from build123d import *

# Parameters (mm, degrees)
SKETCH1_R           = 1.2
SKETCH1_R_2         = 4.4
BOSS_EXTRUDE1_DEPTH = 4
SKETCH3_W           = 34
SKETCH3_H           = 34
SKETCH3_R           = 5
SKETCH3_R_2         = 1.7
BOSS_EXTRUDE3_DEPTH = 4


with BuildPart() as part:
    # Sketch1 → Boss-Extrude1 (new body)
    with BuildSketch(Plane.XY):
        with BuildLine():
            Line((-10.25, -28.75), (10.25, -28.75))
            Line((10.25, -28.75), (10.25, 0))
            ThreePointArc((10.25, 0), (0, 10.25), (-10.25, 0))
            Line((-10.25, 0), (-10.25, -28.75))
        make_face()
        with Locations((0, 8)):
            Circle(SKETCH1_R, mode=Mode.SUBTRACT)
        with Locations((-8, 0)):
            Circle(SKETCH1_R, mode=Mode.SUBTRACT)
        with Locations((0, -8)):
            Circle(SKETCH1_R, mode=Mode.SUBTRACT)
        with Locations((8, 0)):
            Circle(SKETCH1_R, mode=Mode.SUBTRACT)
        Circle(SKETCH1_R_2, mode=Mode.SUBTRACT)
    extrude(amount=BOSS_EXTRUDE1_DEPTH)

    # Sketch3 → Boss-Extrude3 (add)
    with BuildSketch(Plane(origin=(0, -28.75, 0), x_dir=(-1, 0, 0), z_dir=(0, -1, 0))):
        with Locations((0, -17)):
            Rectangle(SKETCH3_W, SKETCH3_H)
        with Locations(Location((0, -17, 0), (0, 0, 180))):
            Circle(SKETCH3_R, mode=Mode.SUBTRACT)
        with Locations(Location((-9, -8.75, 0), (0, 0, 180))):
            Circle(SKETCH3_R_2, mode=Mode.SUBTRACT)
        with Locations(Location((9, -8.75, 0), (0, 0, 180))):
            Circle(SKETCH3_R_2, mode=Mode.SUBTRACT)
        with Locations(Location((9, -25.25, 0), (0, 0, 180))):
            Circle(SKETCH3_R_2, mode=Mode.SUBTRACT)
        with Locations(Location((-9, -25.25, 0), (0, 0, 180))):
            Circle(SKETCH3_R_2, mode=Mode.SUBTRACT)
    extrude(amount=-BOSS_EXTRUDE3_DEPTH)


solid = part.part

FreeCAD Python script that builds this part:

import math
import FreeCAD as App
import Part
import Sketcher
from FreeCAD import Vector
Q = App.Units.Quantity

doc = App.newDocument("Part")
body = doc.addObject("PartDesign::Body", "Body")

# Sketch on XY plane
sketch1 = doc.addObject("Sketcher::SketchObject", "Sketch")
body.addObject(sketch1)
sketch1.AttachmentSupport = (doc.XY_Plane, [""])
sketch1.MapMode = "FlatFace"
sketch1.addGeometry([
    Part.LineSegment(Vector(-10.2, -28.8, 0), Vector(10.2, -28.8, 0)),  # 0
    Part.LineSegment(Vector(10.2, -28.8, 0), Vector(10.2, 0, 0)),  # 1
    Part.ArcOfCircle(Part.Circle(Vector(0, 0, 0), Vector(0, 0, 1), 10.2), math.radians(0), math.radians(180)),  # 2
    Part.LineSegment(Vector(-10.2, 0, 0), Vector(-10.2, -28.8, 0)),  # 3
    Part.Circle(Vector(-8, 0, 0), Vector(0, 0, 1), 1.2),  # 4
    Part.Circle(Vector(0, -8, 0), Vector(0, 0, 1), 1.2),  # 5
    Part.Circle(Vector(0, 0, 0), Vector(0, 0, 1), 4.4),  # 6
    Part.Circle(Vector(8, 0, 0), Vector(0, 0, 1), 1.2),  # 7
    Part.Circle(Vector(0, 8, 0), Vector(0, 0, 1), 1.2),  # 8
], False)
sketch1.addConstraint([
    Sketcher.Constraint("Coincident", 0, 2, 1, 1),
    Sketcher.Constraint("Tangent", 1, 2, 2, 1),
    Sketcher.Constraint("Tangent", 2, 2, 3, 1),
    Sketcher.Constraint("Coincident", 3, 2, 0, 1),
    Sketcher.Constraint("Horizontal", 0),
    Sketcher.Constraint("Vertical", 1),
    Sketcher.Constraint("Vertical", 3),
    Sketcher.Constraint("Coincident", 2, 3, -1, 1),
    Sketcher.Constraint("Coincident", 6, 3, -1, 1),
    Sketcher.Constraint("Equal", 4, 5),
    Sketcher.Constraint("Equal", 5, 7),
    Sketcher.Constraint("Equal", 7, 8),
    Sketcher.Constraint("Symmetric", 4, 3, 7, 3, -1, 1),
    Sketcher.Constraint("Symmetric", 5, 3, 8, 3, -1, 1),
    Sketcher.Constraint("PointOnObject", 4, 3, -1),
    Sketcher.Constraint("PointOnObject", 5, 3, -2),
    Sketcher.Constraint("Diameter", 4, Q("2.4 mm")),
    Sketcher.Constraint("Diameter", 6, Q("8.8 mm")),
    Sketcher.Constraint("Radius", 2, Q("10.25 mm")),
    Sketcher.Constraint("DistanceX", 4, 3, -1, 1, Q("8 mm")),
    Sketcher.Constraint("DistanceY", 5, 3, -1, 1, Q("8 mm")),
    Sketcher.Constraint("DistanceY", 1, 1, 1, 2, Q("28.75 mm")),
])
pad1 = doc.addObject("PartDesign::Pad", "Pad")
body.addObject(pad1)
pad1.Profile = sketch1
pad1.Length = 4

# Sketch on XZ plane
sketch2 = doc.addObject("Sketcher::SketchObject", "Sketch001")
body.addObject(sketch2)
sketch2.AttachmentSupport = (doc.XZ_Plane, [""])
sketch2.MapMode = "FlatFace"
sketch2.AttachmentOffset = App.Placement(Vector(0, 0, 28.75), App.Rotation())
sketch2.addGeometry([
    Part.LineSegment(Vector(17, 0, 0), Vector(17, 34, 0)),  # 0
    Part.LineSegment(Vector(17, 34, 0), Vector(-17, 34, 0)),  # 1
    Part.LineSegment(Vector(-17, 34, 0), Vector(-17, 0, 0)),  # 2
    Part.LineSegment(Vector(-17, 0, 0), Vector(17, 0, 0)),  # 3
    Part.Circle(Vector(9, 25.2, 0), Vector(0, 0, 1), 1.7),  # 4
    Part.Circle(Vector(-9, 25.2, 0), Vector(0, 0, 1), 1.7),  # 5
    Part.Circle(Vector(9, 8.8, 0), Vector(0, 0, 1), 1.7),  # 6
    Part.Circle(Vector(0, 17, 0), Vector(0, 0, 1), 5),  # 7
    Part.Circle(Vector(-9, 8.8, 0), Vector(0, 0, 1), 1.7),  # 8
], False)
sketch2.addConstraint([
    Sketcher.Constraint("Coincident", 0, 2, 1, 1),
    Sketcher.Constraint("Coincident", 1, 2, 2, 1),
    Sketcher.Constraint("Coincident", 2, 2, 3, 1),
    Sketcher.Constraint("Coincident", 3, 2, 0, 1),
    Sketcher.Constraint("Vertical", 0),
    Sketcher.Constraint("Horizontal", 1),
    Sketcher.Constraint("Vertical", 2),
    Sketcher.Constraint("Horizontal", 3),
    Sketcher.Constraint("Equal", 4, 5),
    Sketcher.Constraint("Equal", 5, 6),
    Sketcher.Constraint("Equal", 6, 8),
    Sketcher.Constraint("Symmetric", 2, 2, 3, 2, -1, 1),
    Sketcher.Constraint("Symmetric", 4, 3, 5, 3, -2),
    Sketcher.Constraint("Symmetric", 6, 3, 8, 3, -2),
    Sketcher.Constraint("PointOnObject", 7, 3, -2),
    Sketcher.Constraint("Vertical", 4, 3, 6, 3),
    Sketcher.Constraint("Equal", 3, 0),
    Sketcher.Constraint("Diameter", 7, Q("10 mm")),
    Sketcher.Constraint("Diameter", 4, Q("3.4 mm")),
    Sketcher.Constraint("DistanceX", 1, 2, 1, 1, Q("34 mm")),
    Sketcher.Constraint("DistanceX", -1, 1, 4, 3, Q("9 mm")),
    Sketcher.Constraint("DistanceY", -1, 1, 7, 3, Q("17 mm")),
    Sketcher.Constraint("DistanceY", 6, 3, 4, 3, Q("16.5 mm")),
    Sketcher.Constraint("DistanceY", -1, 1, 4, 3, Q("25.25 mm")),
])
pad2 = doc.addObject("PartDesign::Pad", "Pad001")
body.addObject(pad2)
pad2.Profile = sketch2
pad2.Length = 4
pad2.Reversed = True

doc.recompute()
